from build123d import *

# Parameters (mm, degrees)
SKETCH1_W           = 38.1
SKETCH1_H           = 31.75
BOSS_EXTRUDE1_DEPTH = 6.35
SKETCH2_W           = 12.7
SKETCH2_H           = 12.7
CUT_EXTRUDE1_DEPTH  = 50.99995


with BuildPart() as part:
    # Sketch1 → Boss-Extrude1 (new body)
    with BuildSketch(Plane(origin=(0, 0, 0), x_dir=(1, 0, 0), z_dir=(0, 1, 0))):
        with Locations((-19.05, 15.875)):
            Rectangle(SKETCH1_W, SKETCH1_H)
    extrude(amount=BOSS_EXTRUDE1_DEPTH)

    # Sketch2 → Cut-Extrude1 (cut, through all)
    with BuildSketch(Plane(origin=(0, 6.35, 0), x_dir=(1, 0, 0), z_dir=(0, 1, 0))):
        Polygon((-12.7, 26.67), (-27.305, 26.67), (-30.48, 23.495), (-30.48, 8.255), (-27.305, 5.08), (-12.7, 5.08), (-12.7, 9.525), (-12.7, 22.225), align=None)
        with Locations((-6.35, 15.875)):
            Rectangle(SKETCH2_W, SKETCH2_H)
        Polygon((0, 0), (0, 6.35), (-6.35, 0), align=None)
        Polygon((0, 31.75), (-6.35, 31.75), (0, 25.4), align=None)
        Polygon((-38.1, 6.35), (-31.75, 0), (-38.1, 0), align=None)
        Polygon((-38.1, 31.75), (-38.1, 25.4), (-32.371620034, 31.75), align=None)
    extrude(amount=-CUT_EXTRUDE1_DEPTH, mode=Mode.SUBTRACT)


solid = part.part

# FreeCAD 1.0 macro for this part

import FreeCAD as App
import Part
import Sketcher
from FreeCAD import Vector
Q = App.Units.Quantity


def add_polygon(sketch, points):
    """Adds a closed chain of lines whose ends are joined by coincident constraints."""
    first, n = sketch.GeometryCount, len(points)
    for a, b in zip(points, points[1:] + points[:1]):
        sketch.addGeometry(Part.LineSegment(App.Vector(*a, 0), App.Vector(*b, 0)), False)
    for i in range(n):
        sketch.addConstraint(Sketcher.Constraint("Coincident", first + i, 2, first + (i + 1) % n, 1))

doc = App.newDocument("Part")
params = doc.addObject("Spreadsheet::Sheet", "Params")
for row, (alias, value) in enumerate([
    ("sketch1_width", "1.5 in"),
    ("sketch1_height", "1.25 in"),
    ("pad1_length", "0.25 in"),
    ("sketch2_width", "0.5 in"),
    ("sketch2_height", "0.6 in"),
    ("sketch2_width2", "0.25 in"),
], start=1):
    params.set(f"A{row}", alias)
    params.set(f"B{row}", "=" + value)
    params.setAlias(f"B{row}", alias)

body = doc.addObject("PartDesign::Body", "Body")

# Sketch on XZ plane
sketch1 = body.newObject("Sketcher::SketchObject", "Sketch")
sketch1.AttachmentSupport = (doc.getObject("XZ_Plane"), [""])
sketch1.MapMode = "FlatFace"
add_polygon(sketch1, [(-38, -32), (-38, 0), (0, 0), (0, -32)])  # lines 0-3
sketch1.addConstraint(Sketcher.Constraint("Vertical", 0))
sketch1.addConstraint(Sketcher.Constraint("Horizontal", 1))
sketch1.addConstraint(Sketcher.Constraint("Vertical", 2))
sketch1.addConstraint(Sketcher.Constraint("Horizontal", 3))
sketch1.addConstraint(Sketcher.Constraint("Coincident", 1, 2, -1, 1))
sketch1.addConstraint(Sketcher.Constraint("DistanceX", 1, 1, 1, 2, Q("1.5 in")))
sketch1.addConstraint(Sketcher.Constraint("DistanceY", 0, 1, 0, 2, Q("1.25 in")))
sketch1.setExpression("Constraints[9]", "Params.sketch1_width")
sketch1.setExpression("Constraints[10]", "Params.sketch1_height")
pad1 = body.newObject("PartDesign::Pad", "Pad")
pad1.Profile = sketch1
pad1.setExpression("Length", "Params.pad1_length")
pad1.Reversed = True

# Sketch on XZ plane
sketch2 = body.newObject("Sketcher::SketchObject", "Sketch001")
sketch2.AttachmentSupport = (doc.getObject("XZ_Plane"), [""])
sketch2.MapMode = "FlatFace"
sketch2.AttachmentOffset = App.Placement(Vector(0, 0, -0.25 * 25.4), App.Rotation())
add_polygon(sketch2, [(-12.7, -26.7), (-27.3, -26.7), (-30.5, -23.5), (-30.5, -8.3), (-27.3, -5.1), (-12.7, -5.1), (-12.7, -9.5), (0, -9.5), (0, -22.2), (-12.7, -22.2)])  # lines 0-9
add_polygon(sketch2, [(0, 0), (0, -6.3), (-6.3, 0)])  # lines 10-12
add_polygon(sketch2, [(0, -31.8), (-6.3, -31.8), (0, -25.4)])  # lines 13-15
add_polygon(sketch2, [(-31.8, 0), (-38.1, -6.3), (-38.1, 0)])  # lines 16-18
add_polygon(sketch2, [(-38.1, -31.8), (-38.1, -25.4), (-32.4, -31.8)])  # lines 19-21
sketch2.addConstraint(Sketcher.Constraint("Horizontal", 0))
sketch2.addConstraint(Sketcher.Constraint("Vertical", 2))
sketch2.addConstraint(Sketcher.Constraint("Horizontal", 4))
sketch2.addConstraint(Sketcher.Constraint("Vertical", 5))
sketch2.addConstraint(Sketcher.Constraint("Horizontal", 6))
sketch2.addConstraint(Sketcher.Constraint("Vertical", 7))
sketch2.addConstraint(Sketcher.Constraint("Horizontal", 8))
sketch2.addConstraint(Sketcher.Constraint("Vertical", 9))
sketch2.addConstraint(Sketcher.Constraint("Vertical", 10))
sketch2.addConstraint(Sketcher.Constraint("Horizontal", 12))
sketch2.addConstraint(Sketcher.Constraint("Horizontal", 13))
sketch2.addConstraint(Sketcher.Constraint("Vertical", 15))
sketch2.addConstraint(Sketcher.Constraint("Vertical", 17))
sketch2.addConstraint(Sketcher.Constraint("Horizontal", 18))
sketch2.addConstraint(Sketcher.Constraint("Vertical", 19))
sketch2.addConstraint(Sketcher.Constraint("Horizontal", 21))
sketch2.addConstraint(Sketcher.Constraint("Coincident", 12, 2, -1, 1))
sketch2.addConstraint(Sketcher.Constraint("PointOnObject", 6, 2, -2))
sketch2.addConstraint(Sketcher.Constraint("PointOnObject", 14, 2, -2))
sketch2.addConstraint(Sketcher.Constraint("PointOnObject", 17, 2, -1))
sketch2.addConstraint(Sketcher.Constraint("Perpendicular", 1, 3))
sketch2.addConstraint(Sketcher.Constraint("Perpendicular", 3, 11))
sketch2.addConstraint(Sketcher.Constraint("Perpendicular", 11, 14))
sketch2.addConstraint(Sketcher.Constraint("Parallel", 14, 16))
sketch2.addConstraint(Sketcher.Constraint("Horizontal", 10, 2, 16, 2))
sketch2.addConstraint(Sketcher.Constraint("Horizontal", 14, 2, 19, 2))
sketch2.addConstraint(Sketcher.Constraint("Horizontal", 15, 2, 20, 2))
sketch2.addConstraint(Sketcher.Constraint("Vertical", 0, 2, 3, 2))
sketch2.addConstraint(Sketcher.Constraint("Vertical", 5, 2, 8, 2))
sketch2.addConstraint(Sketcher.Constraint("Vertical", 11, 2, 13, 2))
sketch2.addConstraint(Sketcher.Constraint("Vertical", 17, 2, 19, 2))
sketch2.addConstraint(Sketcher.Constraint("Equal", 13, 18))
sketch2.addConstraint(Sketcher.Constraint("Equal", 8, 7))
sketch2.addConstraint(Sketcher.Constraint("Equal", 5, 9))
sketch2.addConstraint(Sketcher.Constraint("DistanceX", 6, 1, 6, 2, Q("0.5 in")))
sketch2.addConstraint(Sketcher.Constraint("DistanceY", 2, 1, 2, 2, Q("0.6 in")))
sketch2.addConstraint(Sketcher.Constraint("DistanceY", 14, 2, -1, 1, Q("1 in")))
sketch2.addConstraint(Sketcher.Constraint("DistanceX", 16, 2, 4, 2, Q("1 in")))
sketch2.addConstraint(Sketcher.Constraint("DistanceX", 12, 1, 12, 2, Q("0.25 in")))
sketch2.addConstraint(Sketcher.Constraint("DistanceX", 1, 2, -1, 1, Q("1.2 in")))
sketch2.addConstraint(Sketcher.Constraint("DistanceY", 3, 2, -1, 1, Q("0.2 in")))
sketch2.addConstraint(Sketcher.Constraint("DistanceY", 13, 2, 9, 2, Q("0.2 in")))
sketch2.addConstraint(Sketcher.Constraint("DistanceX", 21, 2, 21, 1, Q("5.72838 mm")))
sketch2.setExpression("Constraints[56]", "Params.sketch2_width")
sketch2.setExpression("Constraints[57]", "Params.sketch2_height")
sketch2.setExpression("Constraints[60]", "Params.sketch2_width2")
pocket1 = body.newObject("PartDesign::Pocket", "Pocket")
pocket1.Profile = sketch2
pocket1.Type = "ThroughAll"
pocket1.Reversed = True

doc.recompute()
